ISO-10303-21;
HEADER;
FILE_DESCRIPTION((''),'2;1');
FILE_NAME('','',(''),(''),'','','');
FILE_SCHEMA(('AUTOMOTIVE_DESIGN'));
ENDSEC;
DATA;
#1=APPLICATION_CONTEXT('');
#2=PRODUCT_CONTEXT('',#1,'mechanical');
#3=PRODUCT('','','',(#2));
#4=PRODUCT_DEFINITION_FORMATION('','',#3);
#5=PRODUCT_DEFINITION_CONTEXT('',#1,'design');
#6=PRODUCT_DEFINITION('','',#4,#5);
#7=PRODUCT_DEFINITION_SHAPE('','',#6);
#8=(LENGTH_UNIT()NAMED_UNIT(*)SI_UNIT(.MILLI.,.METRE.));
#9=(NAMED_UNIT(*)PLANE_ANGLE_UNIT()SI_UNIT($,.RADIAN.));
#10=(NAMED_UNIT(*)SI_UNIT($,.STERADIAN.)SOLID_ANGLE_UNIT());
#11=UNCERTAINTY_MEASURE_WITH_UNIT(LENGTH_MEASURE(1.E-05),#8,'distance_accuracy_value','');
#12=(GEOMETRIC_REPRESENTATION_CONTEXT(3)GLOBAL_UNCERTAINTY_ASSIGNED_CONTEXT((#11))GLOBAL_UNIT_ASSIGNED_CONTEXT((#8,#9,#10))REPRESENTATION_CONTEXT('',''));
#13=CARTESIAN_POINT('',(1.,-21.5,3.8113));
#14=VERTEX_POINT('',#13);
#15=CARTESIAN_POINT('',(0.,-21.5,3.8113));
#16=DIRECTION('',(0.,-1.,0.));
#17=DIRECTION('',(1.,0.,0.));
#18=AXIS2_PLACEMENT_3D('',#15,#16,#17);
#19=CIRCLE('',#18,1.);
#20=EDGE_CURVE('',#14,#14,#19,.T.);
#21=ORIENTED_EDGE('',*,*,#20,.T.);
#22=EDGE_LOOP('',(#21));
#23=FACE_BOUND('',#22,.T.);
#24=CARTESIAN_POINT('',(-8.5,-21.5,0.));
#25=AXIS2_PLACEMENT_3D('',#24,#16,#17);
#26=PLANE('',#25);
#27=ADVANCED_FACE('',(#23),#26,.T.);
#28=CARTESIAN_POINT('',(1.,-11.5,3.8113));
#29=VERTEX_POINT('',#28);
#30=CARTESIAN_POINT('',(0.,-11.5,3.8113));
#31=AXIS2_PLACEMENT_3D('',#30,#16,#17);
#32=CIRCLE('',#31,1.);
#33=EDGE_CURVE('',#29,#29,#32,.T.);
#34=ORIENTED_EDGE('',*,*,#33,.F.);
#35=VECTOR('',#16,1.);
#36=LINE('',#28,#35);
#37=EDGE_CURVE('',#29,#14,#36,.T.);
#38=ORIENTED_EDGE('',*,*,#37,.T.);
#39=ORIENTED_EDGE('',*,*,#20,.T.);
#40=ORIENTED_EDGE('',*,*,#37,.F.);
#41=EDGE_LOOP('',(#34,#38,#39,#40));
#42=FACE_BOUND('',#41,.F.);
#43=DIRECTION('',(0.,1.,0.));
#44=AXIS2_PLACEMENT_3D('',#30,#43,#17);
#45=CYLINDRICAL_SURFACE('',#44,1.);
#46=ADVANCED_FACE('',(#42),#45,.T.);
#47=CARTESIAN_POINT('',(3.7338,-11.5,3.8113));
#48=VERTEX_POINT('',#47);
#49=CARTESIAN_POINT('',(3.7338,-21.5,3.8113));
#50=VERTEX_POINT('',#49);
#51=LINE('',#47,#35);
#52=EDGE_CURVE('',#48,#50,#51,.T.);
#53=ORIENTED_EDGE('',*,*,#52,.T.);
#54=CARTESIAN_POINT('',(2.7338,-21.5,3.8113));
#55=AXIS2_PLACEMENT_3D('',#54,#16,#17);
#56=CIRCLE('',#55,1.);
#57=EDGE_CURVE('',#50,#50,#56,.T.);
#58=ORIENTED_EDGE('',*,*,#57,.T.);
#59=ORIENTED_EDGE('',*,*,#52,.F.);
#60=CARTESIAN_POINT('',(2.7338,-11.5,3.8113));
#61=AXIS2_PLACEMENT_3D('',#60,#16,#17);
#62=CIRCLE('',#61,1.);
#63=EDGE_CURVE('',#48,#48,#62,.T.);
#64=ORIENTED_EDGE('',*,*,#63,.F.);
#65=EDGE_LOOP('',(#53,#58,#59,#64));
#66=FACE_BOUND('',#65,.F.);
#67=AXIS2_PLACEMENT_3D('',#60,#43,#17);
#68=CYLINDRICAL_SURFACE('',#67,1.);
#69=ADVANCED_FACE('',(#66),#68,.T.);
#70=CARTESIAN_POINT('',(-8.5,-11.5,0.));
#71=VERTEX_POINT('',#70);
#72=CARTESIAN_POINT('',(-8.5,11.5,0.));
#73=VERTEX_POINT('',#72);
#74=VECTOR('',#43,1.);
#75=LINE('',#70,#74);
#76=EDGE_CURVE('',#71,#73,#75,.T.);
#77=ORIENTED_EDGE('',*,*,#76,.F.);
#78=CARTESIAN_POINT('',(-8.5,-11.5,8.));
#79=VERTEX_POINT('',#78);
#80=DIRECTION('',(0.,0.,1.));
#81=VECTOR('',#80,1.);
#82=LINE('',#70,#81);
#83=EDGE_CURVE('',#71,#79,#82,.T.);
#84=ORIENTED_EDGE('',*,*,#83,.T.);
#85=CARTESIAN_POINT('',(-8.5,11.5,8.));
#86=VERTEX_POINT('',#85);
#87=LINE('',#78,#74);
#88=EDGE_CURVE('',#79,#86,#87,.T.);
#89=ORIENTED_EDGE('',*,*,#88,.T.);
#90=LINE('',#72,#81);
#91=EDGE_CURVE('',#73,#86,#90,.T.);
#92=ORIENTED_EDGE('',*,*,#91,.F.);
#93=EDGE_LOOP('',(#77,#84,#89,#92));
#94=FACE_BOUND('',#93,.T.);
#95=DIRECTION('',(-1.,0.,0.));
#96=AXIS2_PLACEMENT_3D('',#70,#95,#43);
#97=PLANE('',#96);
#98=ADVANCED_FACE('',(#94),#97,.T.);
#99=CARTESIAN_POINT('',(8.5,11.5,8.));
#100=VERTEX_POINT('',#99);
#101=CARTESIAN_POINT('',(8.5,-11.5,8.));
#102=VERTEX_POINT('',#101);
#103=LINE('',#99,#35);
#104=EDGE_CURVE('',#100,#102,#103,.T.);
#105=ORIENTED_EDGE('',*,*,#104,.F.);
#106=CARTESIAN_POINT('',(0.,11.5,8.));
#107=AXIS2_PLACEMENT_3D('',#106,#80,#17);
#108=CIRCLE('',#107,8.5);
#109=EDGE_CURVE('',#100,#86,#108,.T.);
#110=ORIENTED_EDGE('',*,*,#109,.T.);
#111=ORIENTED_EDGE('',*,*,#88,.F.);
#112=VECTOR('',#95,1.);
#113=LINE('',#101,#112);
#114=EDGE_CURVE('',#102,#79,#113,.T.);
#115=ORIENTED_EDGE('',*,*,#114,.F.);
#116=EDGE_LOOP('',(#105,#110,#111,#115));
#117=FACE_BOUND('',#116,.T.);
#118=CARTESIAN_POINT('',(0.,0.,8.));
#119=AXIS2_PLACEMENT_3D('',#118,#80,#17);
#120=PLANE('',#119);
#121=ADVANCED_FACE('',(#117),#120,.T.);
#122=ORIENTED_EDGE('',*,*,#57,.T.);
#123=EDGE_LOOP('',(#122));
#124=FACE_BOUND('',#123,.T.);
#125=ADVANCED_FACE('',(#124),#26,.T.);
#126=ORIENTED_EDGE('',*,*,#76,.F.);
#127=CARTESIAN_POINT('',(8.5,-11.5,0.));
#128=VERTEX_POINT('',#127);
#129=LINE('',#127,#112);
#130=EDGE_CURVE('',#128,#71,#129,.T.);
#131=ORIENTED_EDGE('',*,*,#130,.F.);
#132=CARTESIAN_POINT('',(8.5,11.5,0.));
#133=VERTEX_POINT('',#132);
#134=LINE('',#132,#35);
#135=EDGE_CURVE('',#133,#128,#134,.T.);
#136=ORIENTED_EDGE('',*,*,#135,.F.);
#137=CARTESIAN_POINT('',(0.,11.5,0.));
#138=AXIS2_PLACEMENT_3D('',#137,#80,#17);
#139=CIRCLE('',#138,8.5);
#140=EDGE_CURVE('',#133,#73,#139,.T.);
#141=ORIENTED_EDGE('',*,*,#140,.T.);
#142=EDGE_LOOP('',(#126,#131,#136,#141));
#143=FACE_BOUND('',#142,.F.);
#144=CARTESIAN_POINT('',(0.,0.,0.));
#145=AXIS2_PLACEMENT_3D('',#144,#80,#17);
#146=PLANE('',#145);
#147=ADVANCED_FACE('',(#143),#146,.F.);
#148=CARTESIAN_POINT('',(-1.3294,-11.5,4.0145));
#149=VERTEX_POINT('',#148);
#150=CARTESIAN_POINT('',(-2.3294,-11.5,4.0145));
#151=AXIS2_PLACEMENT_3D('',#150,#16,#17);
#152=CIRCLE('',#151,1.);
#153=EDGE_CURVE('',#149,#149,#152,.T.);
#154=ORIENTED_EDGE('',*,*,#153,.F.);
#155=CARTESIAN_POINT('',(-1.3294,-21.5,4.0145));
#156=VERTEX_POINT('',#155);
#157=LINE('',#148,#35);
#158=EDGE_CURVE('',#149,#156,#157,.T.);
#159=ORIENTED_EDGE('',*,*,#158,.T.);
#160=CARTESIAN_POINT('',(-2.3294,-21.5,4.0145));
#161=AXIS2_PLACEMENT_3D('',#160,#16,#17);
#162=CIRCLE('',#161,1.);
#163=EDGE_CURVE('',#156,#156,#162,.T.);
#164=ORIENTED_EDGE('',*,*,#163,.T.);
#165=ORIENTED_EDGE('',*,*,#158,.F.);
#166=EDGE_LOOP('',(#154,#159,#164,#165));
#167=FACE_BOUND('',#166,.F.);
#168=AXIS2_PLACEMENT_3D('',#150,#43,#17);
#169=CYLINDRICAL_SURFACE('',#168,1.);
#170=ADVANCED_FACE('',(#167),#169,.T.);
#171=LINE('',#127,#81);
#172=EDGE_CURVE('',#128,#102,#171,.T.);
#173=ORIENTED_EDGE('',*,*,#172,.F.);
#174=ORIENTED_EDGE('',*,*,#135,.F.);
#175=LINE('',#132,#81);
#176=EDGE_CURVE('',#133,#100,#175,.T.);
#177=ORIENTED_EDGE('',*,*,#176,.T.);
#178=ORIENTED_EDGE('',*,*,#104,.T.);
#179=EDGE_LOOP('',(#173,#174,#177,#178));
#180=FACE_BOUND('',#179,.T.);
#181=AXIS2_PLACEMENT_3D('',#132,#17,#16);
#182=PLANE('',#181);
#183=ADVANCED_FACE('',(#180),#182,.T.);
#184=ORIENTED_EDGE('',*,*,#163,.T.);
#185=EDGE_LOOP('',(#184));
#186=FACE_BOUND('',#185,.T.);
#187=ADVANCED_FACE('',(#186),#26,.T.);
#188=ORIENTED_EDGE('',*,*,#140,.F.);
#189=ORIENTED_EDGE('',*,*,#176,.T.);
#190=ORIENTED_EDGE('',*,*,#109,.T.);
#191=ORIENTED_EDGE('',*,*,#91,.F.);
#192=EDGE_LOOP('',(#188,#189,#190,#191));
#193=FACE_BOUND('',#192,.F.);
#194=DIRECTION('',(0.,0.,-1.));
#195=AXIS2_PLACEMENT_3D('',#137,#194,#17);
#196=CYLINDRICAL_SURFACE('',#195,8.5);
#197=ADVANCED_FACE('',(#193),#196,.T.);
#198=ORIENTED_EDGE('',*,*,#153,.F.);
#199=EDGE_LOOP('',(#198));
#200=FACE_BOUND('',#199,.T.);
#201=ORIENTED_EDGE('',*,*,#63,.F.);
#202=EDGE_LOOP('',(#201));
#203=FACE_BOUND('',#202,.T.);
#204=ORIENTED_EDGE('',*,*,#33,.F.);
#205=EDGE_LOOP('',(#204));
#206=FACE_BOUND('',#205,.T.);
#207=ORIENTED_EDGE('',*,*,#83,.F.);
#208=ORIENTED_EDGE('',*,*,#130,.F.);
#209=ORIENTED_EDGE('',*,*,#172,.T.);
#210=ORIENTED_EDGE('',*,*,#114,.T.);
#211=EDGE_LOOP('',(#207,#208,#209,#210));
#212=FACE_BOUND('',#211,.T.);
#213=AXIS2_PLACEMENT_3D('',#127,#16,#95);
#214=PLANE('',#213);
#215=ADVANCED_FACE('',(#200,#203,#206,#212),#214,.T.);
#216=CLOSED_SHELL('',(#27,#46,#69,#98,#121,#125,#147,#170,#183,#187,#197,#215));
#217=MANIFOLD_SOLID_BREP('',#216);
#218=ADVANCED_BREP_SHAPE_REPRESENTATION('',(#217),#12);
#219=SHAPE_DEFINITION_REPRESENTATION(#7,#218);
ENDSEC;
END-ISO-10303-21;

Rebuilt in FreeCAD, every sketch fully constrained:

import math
import FreeCAD as App
import Part
import Sketcher

V = App.Vector
Q = App.Units.Quantity

doc = App.newDocument("Part")
params = doc.addObject("Spreadsheet::Sheet", "Params")
for row, (alias, value) in enumerate([
    ("sketch1_radius", "8.5 mm"),
    ("sketch1_height", "23 mm"),
    ("pad1_length", "8 mm"),
    ("sketch2_diameter", "2 mm"),
    ("pad2_length", "10 mm"),
    ("sketch3_diameter", "2 mm"),
    ("pad3_length", "10 mm"),
], start=1):
    params.set(f"A{row}", alias)
    params.set(f"B{row}", "=" + value)
    params.setAlias(f"B{row}", alias)

body = doc.addObject("PartDesign::Body", "Body")

# Sketch on XY plane
sketch1 = body.newObject("Sketcher::SketchObject", "Sketch")
sketch1.AttachmentSupport = (doc.getObject("XY_Plane"), [""])
sketch1.MapMode = "FlatFace"
sketch1.addGeometry([
    Part.ArcOfCircle(Part.Circle(V(0, 12, 0), V(0, 0, 1), 8), math.radians(0), math.radians(180)),
    Part.LineSegment(V(-8, 12, 0), V(-8, -12, 0)),
    Part.LineSegment(V(-8, -12, 0), V(8, -12, 0)),
    Part.LineSegment(V(8, -12, 0), V(8, 12, 0)),
], False)
sketch1.addConstraint([
    Sketcher.Constraint("Tangent", 0, 2, 1, 1),
    Sketcher.Constraint("Coincident", 1, 2, 2, 1),
    Sketcher.Constraint("Coincident", 2, 2, 3, 1),
    Sketcher.Constraint("Tangent", 3, 2, 0, 1),
    Sketcher.Constraint("Vertical", 1),
    Sketcher.Constraint("Horizontal", 2),
    Sketcher.Constraint("Vertical", 3),
    Sketcher.Constraint("Symmetric", 0, 2, 2, 2, -1, 1),
    Sketcher.Constraint("Radius", 0, Q("8.5 mm")),
    Sketcher.Constraint("DistanceY", 1, 2, 1, 1, Q("23 mm")),
])
sketch1.setExpression("Constraints[8]", "Params.sketch1_radius")
sketch1.setExpression("Constraints[9]", "Params.sketch1_height")
pad1 = body.newObject("PartDesign::Pad", "Pad")
pad1.Profile = sketch1
pad1.setExpression("Length", "Params.pad1_length")

# Sketch on XZ plane
sketch2 = body.newObject("Sketcher::SketchObject", "Sketch001")
sketch2.AttachmentSupport = (doc.getObject("XZ_Plane"), [""])
sketch2.MapMode = "FlatFace"
sketch2.AttachmentOffset = App.Placement(V(0, 0, 11.5), App.Rotation())
sketch2.addGeometry([
    Part.Circle(V(-2.3, 4, 0), V(0, 0, 1), 1),
    Part.Circle(V(2.7, 3.8, 0), V(0, 0, 1), 1),
], False)
sketch2.addConstraint([
    Sketcher.Constraint("Equal", 0, 1),
    Sketcher.Constraint("Diameter", 0, Q("2 mm")),
    Sketcher.Constraint("DistanceX", 0, 3, -1, 1, Q("2.3294 mm")),
    Sketcher.Constraint("DistanceY", -1, 1, 0, 3, Q("4.0145 mm")),
    Sketcher.Constraint("DistanceX", -1, 1, 1, 3, Q("2.7338 mm")),
    Sketcher.Constraint("DistanceY", -1, 1, 1, 3, Q("3.8113 mm")),
])
sketch2.setExpression("Constraints[1]", "Params.sketch2_diameter")
pad2 = body.newObject("PartDesign::Pad", "Pad001")
pad2.Profile = sketch2
pad2.setExpression("Length", "Params.pad2_length")

# Sketch on XZ plane
sketch3 = body.newObject("Sketcher::SketchObject", "Sketch002")
sketch3.AttachmentSupport = (doc.getObject("XZ_Plane"), [""])
sketch3.MapMode = "FlatFace"
sketch3.AttachmentOffset = App.Placement(V(0, 0, 11.5), App.Rotation())
sketch3.addGeometry(Part.Circle(V(0, 3.8, 0), V(0, 0, 1), 1), False)
sketch3.addConstraint([
    Sketcher.Constraint("PointOnObject", 0, 3, -2),
    Sketcher.Constraint("Diameter", 0, Q("2 mm")),
    Sketcher.Constraint("DistanceY", -1, 1, 0, 3, Q("3.8113 mm")),
])
sketch3.setExpression("Constraints[1]", "Params.sketch3_diameter")
pad3 = body.newObject("PartDesign::Pad", "Pad002")
pad3.Profile = sketch3
pad3.setExpression("Length", "Params.pad3_length")

doc.recompute()
